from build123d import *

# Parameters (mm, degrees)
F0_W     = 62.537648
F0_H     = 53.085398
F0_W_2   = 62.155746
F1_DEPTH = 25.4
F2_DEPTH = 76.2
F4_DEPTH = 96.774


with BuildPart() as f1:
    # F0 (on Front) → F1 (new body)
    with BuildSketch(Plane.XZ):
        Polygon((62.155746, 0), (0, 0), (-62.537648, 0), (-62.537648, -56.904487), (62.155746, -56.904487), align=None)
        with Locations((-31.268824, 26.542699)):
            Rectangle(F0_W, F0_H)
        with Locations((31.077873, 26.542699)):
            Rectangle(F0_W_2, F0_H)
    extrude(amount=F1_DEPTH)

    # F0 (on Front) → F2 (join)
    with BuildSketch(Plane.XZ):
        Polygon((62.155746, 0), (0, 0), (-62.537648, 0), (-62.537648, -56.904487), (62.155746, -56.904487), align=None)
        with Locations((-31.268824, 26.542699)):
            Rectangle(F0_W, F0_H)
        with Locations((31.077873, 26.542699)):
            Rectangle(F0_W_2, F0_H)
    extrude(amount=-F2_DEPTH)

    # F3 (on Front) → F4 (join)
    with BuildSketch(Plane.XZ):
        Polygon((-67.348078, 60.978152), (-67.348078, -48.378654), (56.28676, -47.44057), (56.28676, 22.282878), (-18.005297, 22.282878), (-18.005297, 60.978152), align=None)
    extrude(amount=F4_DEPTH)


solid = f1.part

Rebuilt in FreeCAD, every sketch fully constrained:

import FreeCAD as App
import Part
import Sketcher
from FreeCAD import Vector
Q = App.Units.Quantity


def add_polygon(sketch, points):
    """Adds a closed chain of lines whose ends are joined by coincident constraints."""
    first, n = sketch.GeometryCount, len(points)
    for a, b in zip(points, points[1:] + points[:1]):
        sketch.addGeometry(Part.LineSegment(App.Vector(*a, 0), App.Vector(*b, 0)), False)
    for i in range(n):
        sketch.addConstraint(Sketcher.Constraint("Coincident", first + i, 2, first + (i + 1) % n, 1))

doc = App.newDocument("Part")
body = doc.addObject("PartDesign::Body", "Body")

# Sketch on XZ plane
sketch1 = body.newObject("Sketcher::SketchObject", "Sketch")
sketch1.AttachmentSupport = (doc.getObject("XZ_Plane"), [""])
sketch1.MapMode = "FlatFace"
add_polygon(sketch1, [(-63, 53), (-63, -57), (62, -57), (62, 53)])  # lines 0-3
sketch1.addConstraint(Sketcher.Constraint("Vertical", 0))
sketch1.addConstraint(Sketcher.Constraint("Horizontal", 1))
sketch1.addConstraint(Sketcher.Constraint("Vertical", 2))
sketch1.addConstraint(Sketcher.Constraint("Horizontal", 3))
sketch1.addConstraint(Sketcher.Constraint("DistanceX", 1, 1, 1, 2, 124.693394))
sketch1.addConstraint(Sketcher.Constraint("DistanceY", 0, 2, 0, 1, 109.989885))
sketch1.addConstraint(Sketcher.Constraint("DistanceX", 0, 2, -1, 1, 62.537648))
sketch1.addConstraint(Sketcher.Constraint("DistanceY", 0, 2, -1, 1, 56.904487))
pad1 = body.newObject("PartDesign::Pad", "Pad")
pad1.Profile = sketch1
pad1.Length = Q("1 in")

# Sketch on XZ plane
sketch2 = body.newObject("Sketcher::SketchObject", "Sketch001")
sketch2.AttachmentSupport = (doc.getObject("XZ_Plane"), [""])
sketch2.MapMode = "FlatFace"
add_polygon(sketch2, [(-63, 53), (-63, -57), (62, -57), (62, 53)])  # lines 0-3
sketch2.addConstraint(Sketcher.Constraint("Vertical", 0))
sketch2.addConstraint(Sketcher.Constraint("Horizontal", 1))
sketch2.addConstraint(Sketcher.Constraint("Vertical", 2))
sketch2.addConstraint(Sketcher.Constraint("Horizontal", 3))
sketch2.addConstraint(Sketcher.Constraint("DistanceX", 1, 1, 1, 2, 124.693394))
sketch2.addConstraint(Sketcher.Constraint("DistanceY", 0, 2, 0, 1, 109.989885))
sketch2.addConstraint(Sketcher.Constraint("DistanceX", 0, 2, -1, 1, 62.537648))
sketch2.addConstraint(Sketcher.Constraint("DistanceY", 0, 2, -1, 1, 56.904487))
pad2 = body.newObject("PartDesign::Pad", "Pad001")
pad2.Profile = sketch2
pad2.Length = Q("3 in")
pad2.Reversed = True

# Sketch on XZ plane
sketch3 = body.newObject("Sketcher::SketchObject", "Sketch002")
sketch3.AttachmentSupport = (doc.getObject("XZ_Plane"), [""])
sketch3.MapMode = "FlatFace"
add_polygon(sketch3, [(-67, 61), (-67, -48), (56, -47), (56, 22), (-18, 22), (-18, 61)])  # lines 0-5
sketch3.addConstraint(Sketcher.Constraint("Vertical", 0))
sketch3.addConstraint(Sketcher.Constraint("Vertical", 2))
sketch3.addConstraint(Sketcher.Constraint("Horizontal", 3))
sketch3.addConstraint(Sketcher.Constraint("Vertical", 4))
sketch3.addConstraint(Sketcher.Constraint("Horizontal", 5))
sketch3.addConstraint(Sketcher.Constraint("DistanceX", 5, 2, 5, 1, 49.342781))
sketch3.addConstraint(Sketcher.Constraint("DistanceY", 2, 1, 2, 2, 69.723448))
sketch3.addConstraint(Sketcher.Constraint("DistanceX", 3, 2, 3, 1, 74.292057))
sketch3.addConstraint(Sketcher.Constraint("DistanceY", 0, 2, 0, 1, 109.356806))
sketch3.addConstraint(Sketcher.Constraint("DistanceY", 4, 1, 4, 2, 38.695274))
sketch3.addConstraint(Sketcher.Constraint("DistanceX", 0, 2, -1, 1, 67.348078))
sketch3.addConstraint(Sketcher.Constraint("DistanceY", 1, 2, -1, 1, 47.44057))
pad3 = body.newObject("PartDesign::Pad", "Pad002")
pad3.Profile = sketch3
pad3.Length = Q("3.81 in")

doc.recompute()
